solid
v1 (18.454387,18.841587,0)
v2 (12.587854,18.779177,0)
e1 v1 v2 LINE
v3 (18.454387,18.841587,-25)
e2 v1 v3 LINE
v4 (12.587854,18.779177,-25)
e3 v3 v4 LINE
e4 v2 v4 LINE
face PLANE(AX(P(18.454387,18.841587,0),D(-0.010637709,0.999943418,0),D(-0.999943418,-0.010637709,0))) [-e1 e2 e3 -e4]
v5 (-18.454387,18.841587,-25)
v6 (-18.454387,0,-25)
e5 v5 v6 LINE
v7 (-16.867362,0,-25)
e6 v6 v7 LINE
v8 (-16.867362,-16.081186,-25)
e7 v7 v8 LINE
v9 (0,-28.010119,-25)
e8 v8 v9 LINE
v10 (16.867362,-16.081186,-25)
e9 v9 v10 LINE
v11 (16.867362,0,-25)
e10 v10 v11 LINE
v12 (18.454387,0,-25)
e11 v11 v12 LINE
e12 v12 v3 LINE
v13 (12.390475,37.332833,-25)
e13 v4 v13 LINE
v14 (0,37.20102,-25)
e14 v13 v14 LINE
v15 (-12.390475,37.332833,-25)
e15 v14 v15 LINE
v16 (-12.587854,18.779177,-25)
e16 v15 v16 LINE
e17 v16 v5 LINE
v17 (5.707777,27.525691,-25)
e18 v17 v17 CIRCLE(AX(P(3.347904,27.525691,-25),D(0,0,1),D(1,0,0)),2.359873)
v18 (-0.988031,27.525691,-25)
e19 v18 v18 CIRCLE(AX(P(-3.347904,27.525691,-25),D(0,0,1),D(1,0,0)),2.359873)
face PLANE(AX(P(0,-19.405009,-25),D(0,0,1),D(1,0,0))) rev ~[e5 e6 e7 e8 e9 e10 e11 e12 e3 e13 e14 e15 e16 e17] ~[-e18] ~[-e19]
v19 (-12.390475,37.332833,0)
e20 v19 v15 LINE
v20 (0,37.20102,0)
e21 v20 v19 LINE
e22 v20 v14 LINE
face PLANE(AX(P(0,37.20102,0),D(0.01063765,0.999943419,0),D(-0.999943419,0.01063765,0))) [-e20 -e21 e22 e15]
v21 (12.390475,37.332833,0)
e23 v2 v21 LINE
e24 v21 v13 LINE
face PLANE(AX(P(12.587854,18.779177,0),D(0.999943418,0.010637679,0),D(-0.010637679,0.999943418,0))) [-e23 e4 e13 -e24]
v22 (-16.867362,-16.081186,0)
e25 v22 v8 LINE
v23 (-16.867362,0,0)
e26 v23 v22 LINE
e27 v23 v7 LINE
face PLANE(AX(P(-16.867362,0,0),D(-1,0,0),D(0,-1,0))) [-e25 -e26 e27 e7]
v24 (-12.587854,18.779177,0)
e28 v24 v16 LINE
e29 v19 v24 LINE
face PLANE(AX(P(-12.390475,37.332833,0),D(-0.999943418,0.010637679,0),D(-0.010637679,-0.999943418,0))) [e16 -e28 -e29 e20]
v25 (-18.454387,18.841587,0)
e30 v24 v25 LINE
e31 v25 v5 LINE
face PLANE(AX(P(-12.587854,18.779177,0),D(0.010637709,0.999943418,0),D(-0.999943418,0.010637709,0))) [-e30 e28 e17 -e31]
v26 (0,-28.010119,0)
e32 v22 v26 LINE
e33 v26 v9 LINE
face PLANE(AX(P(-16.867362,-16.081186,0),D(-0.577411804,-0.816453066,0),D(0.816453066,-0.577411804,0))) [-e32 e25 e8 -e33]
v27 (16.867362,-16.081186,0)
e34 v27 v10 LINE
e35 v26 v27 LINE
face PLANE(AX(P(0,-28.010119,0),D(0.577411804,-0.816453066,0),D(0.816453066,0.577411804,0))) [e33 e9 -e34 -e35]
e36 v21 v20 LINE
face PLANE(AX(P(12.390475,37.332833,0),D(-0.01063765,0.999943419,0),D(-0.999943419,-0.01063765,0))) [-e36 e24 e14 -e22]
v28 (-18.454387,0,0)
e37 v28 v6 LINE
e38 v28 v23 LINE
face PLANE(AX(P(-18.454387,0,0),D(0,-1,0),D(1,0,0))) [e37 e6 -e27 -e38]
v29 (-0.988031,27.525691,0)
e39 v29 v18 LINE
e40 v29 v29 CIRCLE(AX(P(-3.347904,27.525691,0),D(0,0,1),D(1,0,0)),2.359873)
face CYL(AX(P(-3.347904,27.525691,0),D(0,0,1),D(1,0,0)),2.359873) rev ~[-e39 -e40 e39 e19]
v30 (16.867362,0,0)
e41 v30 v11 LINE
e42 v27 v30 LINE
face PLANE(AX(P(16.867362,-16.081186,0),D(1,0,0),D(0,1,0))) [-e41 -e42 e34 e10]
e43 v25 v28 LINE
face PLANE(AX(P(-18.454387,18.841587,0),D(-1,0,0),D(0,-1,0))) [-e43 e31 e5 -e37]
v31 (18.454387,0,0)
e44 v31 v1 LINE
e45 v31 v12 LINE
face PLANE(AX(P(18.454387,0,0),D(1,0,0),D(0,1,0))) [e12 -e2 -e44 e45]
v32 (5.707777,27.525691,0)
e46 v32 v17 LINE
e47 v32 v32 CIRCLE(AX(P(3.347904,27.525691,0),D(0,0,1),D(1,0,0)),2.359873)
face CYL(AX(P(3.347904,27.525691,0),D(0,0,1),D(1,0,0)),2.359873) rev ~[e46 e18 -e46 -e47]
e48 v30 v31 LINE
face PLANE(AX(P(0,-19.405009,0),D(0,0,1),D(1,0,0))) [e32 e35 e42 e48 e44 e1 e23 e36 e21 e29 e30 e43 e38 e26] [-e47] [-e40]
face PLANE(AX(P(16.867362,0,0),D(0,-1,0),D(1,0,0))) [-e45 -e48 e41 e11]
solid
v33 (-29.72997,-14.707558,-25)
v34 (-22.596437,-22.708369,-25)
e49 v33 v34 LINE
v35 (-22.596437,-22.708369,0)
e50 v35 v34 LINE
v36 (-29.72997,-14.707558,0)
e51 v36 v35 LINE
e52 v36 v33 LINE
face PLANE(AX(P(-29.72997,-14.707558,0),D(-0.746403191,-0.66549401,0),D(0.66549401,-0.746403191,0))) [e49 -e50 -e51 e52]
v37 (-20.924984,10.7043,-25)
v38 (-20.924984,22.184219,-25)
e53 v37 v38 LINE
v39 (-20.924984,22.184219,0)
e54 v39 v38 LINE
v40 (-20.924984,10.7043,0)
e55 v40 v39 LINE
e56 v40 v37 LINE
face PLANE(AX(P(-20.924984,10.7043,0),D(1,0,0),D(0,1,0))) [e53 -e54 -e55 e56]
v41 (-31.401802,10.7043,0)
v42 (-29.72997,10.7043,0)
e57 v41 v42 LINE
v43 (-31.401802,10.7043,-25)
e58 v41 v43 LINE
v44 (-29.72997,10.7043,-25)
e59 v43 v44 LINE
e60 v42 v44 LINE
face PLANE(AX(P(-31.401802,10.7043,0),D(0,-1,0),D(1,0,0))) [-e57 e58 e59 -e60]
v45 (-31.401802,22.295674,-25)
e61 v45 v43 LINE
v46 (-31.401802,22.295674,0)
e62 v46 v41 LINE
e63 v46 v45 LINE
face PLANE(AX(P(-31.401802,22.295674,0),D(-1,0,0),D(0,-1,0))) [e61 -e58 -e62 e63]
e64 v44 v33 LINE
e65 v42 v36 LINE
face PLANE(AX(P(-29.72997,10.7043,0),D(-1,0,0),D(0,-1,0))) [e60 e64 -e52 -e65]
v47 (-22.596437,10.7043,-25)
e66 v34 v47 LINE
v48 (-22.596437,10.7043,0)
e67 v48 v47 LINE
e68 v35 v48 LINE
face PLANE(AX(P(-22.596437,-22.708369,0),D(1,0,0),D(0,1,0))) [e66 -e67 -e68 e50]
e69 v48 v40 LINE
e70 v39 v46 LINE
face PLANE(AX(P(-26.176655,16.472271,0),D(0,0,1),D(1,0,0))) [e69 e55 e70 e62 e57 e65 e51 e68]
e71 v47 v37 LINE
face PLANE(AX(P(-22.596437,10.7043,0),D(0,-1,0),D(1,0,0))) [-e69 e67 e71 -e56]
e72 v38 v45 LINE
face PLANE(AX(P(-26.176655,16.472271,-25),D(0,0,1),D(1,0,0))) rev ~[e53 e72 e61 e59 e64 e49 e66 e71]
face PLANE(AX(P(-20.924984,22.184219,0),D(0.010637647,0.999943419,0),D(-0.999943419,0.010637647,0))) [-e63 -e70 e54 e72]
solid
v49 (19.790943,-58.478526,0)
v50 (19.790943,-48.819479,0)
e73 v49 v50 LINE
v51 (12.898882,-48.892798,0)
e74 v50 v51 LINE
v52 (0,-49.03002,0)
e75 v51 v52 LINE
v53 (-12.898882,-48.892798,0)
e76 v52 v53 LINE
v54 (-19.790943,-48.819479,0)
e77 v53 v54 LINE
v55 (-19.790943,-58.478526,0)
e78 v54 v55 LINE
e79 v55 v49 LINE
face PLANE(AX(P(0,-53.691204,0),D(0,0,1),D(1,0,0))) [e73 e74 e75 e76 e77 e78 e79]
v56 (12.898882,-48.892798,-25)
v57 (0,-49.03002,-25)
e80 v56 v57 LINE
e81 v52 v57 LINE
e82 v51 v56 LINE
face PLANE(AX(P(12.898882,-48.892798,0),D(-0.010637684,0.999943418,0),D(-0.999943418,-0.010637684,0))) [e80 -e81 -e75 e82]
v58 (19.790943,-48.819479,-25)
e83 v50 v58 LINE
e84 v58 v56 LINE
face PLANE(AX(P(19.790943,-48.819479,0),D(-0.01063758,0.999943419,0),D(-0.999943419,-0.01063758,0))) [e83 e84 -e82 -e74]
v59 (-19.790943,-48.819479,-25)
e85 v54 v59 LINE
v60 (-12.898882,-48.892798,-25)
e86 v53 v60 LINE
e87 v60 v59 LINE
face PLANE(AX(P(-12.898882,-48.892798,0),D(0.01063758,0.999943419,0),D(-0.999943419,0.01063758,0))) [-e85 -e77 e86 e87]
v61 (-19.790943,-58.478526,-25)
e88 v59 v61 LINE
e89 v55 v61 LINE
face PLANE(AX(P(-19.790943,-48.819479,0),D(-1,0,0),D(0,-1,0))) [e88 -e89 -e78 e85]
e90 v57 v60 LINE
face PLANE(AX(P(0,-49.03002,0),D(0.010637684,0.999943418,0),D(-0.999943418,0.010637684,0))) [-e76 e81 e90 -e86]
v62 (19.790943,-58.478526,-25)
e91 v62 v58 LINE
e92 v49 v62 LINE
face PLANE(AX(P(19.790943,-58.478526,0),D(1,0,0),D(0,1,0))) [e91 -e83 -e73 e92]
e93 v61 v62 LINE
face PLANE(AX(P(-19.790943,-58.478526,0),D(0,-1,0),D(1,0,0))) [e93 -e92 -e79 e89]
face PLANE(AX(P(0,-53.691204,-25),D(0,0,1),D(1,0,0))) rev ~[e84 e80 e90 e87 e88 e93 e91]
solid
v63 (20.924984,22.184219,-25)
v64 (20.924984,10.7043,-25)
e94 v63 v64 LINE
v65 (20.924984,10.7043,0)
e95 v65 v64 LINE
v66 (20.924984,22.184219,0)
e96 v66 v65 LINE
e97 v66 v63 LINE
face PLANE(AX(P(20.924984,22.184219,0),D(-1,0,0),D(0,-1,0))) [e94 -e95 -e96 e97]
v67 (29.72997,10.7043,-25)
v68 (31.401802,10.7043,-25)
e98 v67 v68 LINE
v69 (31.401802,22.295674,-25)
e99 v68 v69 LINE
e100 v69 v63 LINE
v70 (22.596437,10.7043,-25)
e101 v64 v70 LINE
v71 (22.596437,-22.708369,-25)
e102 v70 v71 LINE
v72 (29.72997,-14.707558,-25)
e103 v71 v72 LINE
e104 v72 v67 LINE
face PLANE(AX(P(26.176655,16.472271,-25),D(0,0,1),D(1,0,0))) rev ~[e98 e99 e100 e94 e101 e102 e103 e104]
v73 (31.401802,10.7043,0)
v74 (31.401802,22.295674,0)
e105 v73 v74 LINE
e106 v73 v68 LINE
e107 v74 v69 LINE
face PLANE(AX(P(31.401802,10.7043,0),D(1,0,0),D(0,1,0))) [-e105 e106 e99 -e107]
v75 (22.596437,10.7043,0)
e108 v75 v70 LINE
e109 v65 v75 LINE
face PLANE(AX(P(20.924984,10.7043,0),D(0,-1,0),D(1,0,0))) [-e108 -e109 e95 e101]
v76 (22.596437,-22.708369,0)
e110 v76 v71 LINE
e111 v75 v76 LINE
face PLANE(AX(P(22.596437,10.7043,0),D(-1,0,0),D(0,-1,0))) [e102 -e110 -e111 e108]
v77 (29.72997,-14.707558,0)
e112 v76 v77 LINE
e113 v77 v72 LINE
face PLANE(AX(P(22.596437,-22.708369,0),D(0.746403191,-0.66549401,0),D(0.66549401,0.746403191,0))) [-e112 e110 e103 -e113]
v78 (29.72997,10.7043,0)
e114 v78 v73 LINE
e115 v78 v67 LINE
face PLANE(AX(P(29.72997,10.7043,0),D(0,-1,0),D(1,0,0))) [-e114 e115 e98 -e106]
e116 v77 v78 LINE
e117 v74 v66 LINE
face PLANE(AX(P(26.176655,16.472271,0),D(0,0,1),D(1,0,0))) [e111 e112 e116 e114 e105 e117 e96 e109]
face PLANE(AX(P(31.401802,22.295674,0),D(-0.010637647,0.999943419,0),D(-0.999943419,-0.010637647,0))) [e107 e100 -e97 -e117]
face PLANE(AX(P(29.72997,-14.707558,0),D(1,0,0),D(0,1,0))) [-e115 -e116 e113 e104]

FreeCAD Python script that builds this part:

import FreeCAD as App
import Part
import Sketcher
from FreeCAD import Vector


def add_polygon(sketch, points):
    """Adds a closed chain of lines whose ends are joined by coincident constraints."""
    first, n = sketch.GeometryCount, len(points)
    for a, b in zip(points, points[1:] + points[:1]):
        sketch.addGeometry(Part.LineSegment(App.Vector(*a, 0), App.Vector(*b, 0)), False)
    for i in range(n):
        sketch.addConstraint(Sketcher.Constraint("Coincident", first + i, 2, first + (i + 1) % n, 1))

doc = App.newDocument("Part")
body = doc.addObject("PartDesign::Body", "Body")
body.AllowCompound = True

# Sketch on XY plane
sketch1 = body.newObject("Sketcher::SketchObject", "Sketch")
sketch1.AttachmentSupport = (doc.getObject("XY_Plane"), [""])
sketch1.MapMode = "FlatFace"
add_polygon(sketch1, [(-20.924984, 22.184219), (-31.401802, 22.295674), (-31.401802, 10.7043), (-29.72997, 10.7043), (-29.72997, -14.707558), (-22.596437, -22.708369), (-22.596437, 10.7043), (-20.924984, 10.7043)])  # lines 0-7
add_polygon(sketch1, [(-16.867362, -16.081186), (0, -28.010119), (16.867362, -16.081186), (16.867362, 0), (18.454387, 0), (18.454387, 18.841587), (12.587854, 18.779177), (12.390475, 37.332833), (0, 37.20102), (-12.390475, 37.332833), (-12.587854, 18.779177), (-18.454387, 18.841587), (-18.454387, 0), (-16.867362, 0)])  # lines 8-21
sketch1.addGeometry(Part.Circle(Vector(-3.347904, 27.525691, 0), Vector(0, 0, 1), 2.359873), False)  # 22
sketch1.addGeometry(Part.Circle(Vector(3.347904, 27.525691, 0), Vector(0, 0, 1), 2.359873), False)  # 23
add_polygon(sketch1, [(-19.790943, -48.819479), (-19.790943, -58.478526), (19.790943, -58.478526), (19.790943, -48.819479), (12.898882, -48.892798), (0, -49.03002), (-12.898882, -48.892798)])  # lines 24-30
add_polygon(sketch1, [(31.401802, 22.295674), (20.924984, 22.184219), (20.924984, 10.7043), (22.596437, 10.7043), (22.596437, -22.708369), (29.72997, -14.707558), (29.72997, 10.7043), (31.401802, 10.7043)])  # lines 31-38
sketch1.addConstraint([
    Sketcher.Constraint("Vertical", 1),
    Sketcher.Constraint("Horizontal", 2),
    Sketcher.Constraint("Vertical", 3),
    Sketcher.Constraint("Vertical", 5),
    Sketcher.Constraint("Horizontal", 6),
    Sketcher.Constraint("Vertical", 7),
    Sketcher.Constraint("Vertical", 10),
    Sketcher.Constraint("Horizontal", 11),
    Sketcher.Constraint("Vertical", 12),
    Sketcher.Constraint("Vertical", 19),
    Sketcher.Constraint("Horizontal", 20),
    Sketcher.Constraint("Vertical", 21),
    Sketcher.Constraint("Vertical", 24),
    Sketcher.Constraint("Horizontal", 25),
    Sketcher.Constraint("Vertical", 26),
    Sketcher.Constraint("Vertical", 32),
    Sketcher.Constraint("Horizontal", 33),
    Sketcher.Constraint("Vertical", 34),
    Sketcher.Constraint("Vertical", 36),
    Sketcher.Constraint("Horizontal", 37),
    Sketcher.Constraint("Vertical", 38),
    Sketcher.Constraint("PointOnObject", 8, 2, -2),
    Sketcher.Constraint("PointOnObject", 10, 2, -1),
    Sketcher.Constraint("PointOnObject", 15, 2, -2),
    Sketcher.Constraint("PointOnObject", 19, 2, -1),
    Sketcher.Constraint("PointOnObject", 28, 2, -2),
    Sketcher.Constraint("Diameter", 22, 4.719746),
    Sketcher.Constraint("Diameter", 23, 4.719746),
    Sketcher.Constraint("DistanceX", 2, 1, 2, 2, 1.671832),
    Sketcher.Constraint("DistanceX", 37, 1, 37, 2, 1.671832),
    Sketcher.Constraint("DistanceY", 3, 2, 3, 1, 25.411858),
    Sketcher.Constraint("DistanceY", 5, 1, 5, 2, 33.412669),
    Sketcher.Constraint("DistanceY", 7, 1, 7, 2, 11.479919),
    Sketcher.Constraint("DistanceY", 32, 2, 32, 1, 11.479919),
    Sketcher.Constraint("DistanceY", 34, 2, 34, 1, 33.412669),
    Sketcher.Constraint("DistanceY", 36, 1, 36, 2, 25.411858),
    Sketcher.Constraint("DistanceX", 0, 2, -1, 1, 31.401802),
    Sketcher.Constraint("DistanceY", -1, 1, 1, 2, 10.7043),
    Sketcher.Constraint("DistanceY", -1, 1, 5, 2, 10.7043),
    Sketcher.Constraint("DistanceY", -1, 1, 32, 2, 10.7043),
    Sketcher.Constraint("DistanceY", -1, 1, 36, 2, 10.7043),
    Sketcher.Constraint("DistanceX", -1, 1, 37, 2, 31.401802),
    Sketcher.Constraint("DistanceX", 0, 2, 22, 3, 28.053898),
    Sketcher.Constraint("DistanceX", 4, 2, 9, 2, 39.463799),
    Sketcher.Constraint("DistanceY", 7, 2, 15, 2, 15.016801),
    Sketcher.Constraint("DistanceY", 28, 2, 8, 2, 21.019901),
    Sketcher.Constraint("Distance", 0, 10.477411),
    Sketcher.Constraint("Distance", 27, 6.892451),
    Sketcher.Constraint("Distance", 28, 12.899612),
    Sketcher.Constraint("Distance", 29, 12.899612),
    Sketcher.Constraint("Distance", 30, 6.892451),
    Sketcher.Constraint("Distance", 31, 10.477411),
    Sketcher.Constraint("DistanceX", 6, 1, 6, 2, 1.671453),
    Sketcher.Constraint("DistanceX", 11, 1, 11, 2, 1.587025),
    Sketcher.Constraint("DistanceX", 20, 1, 20, 2, 1.587025),
    Sketcher.Constraint("DistanceX", 25, 1, 25, 2, 39.581886),
    Sketcher.Constraint("DistanceX", 33, 1, 33, 2, 1.671453),
    Sketcher.Constraint("DistanceY", 1, 2, 1, 1, 11.591374),
    Sketcher.Constraint("DistanceY", 10, 1, 10, 2, 16.081186),
    Sketcher.Constraint("DistanceY", 12, 1, 12, 2, 18.841587),
    Sketcher.Constraint("DistanceY", 19, 2, 19, 1, 18.841587),
    Sketcher.Constraint("DistanceY", 21, 2, 21, 1, 16.081186),
    Sketcher.Constraint("DistanceY", 24, 2, 24, 1, 9.659047),
    Sketcher.Constraint("DistanceY", 26, 1, 26, 2, 9.659047),
    Sketcher.Constraint("DistanceY", 38, 1, 38, 2, 11.591374),
    Sketcher.Constraint("DistanceY", -1, 1, 22, 3, 27.525691),
    Sketcher.Constraint("DistanceY", -1, 1, 23, 3, 27.525691),
    Sketcher.Constraint("DistanceY", 8, 2, -1, 1, 28.010119),
    Sketcher.Constraint("DistanceX", 20, 2, -1, 1, 16.867362),
    Sketcher.Constraint("DistanceX", 22, 3, 23, 3, 6.695808),
    Sketcher.Constraint("DistanceY", 13, 2, 12, 2, 0.06241),
    Sketcher.Constraint("DistanceX", 23, 3, 13, 2, 9.23995),
    Sketcher.Constraint("DistanceX", 23, 3, 14, 2, 9.042571),
    Sketcher.Constraint("DistanceX", 16, 2, 22, 3, 9.042571),
    Sketcher.Constraint("DistanceY", 0, 2, 16, 2, 15.037159),
    Sketcher.Constraint("DistanceX", 7, 2, 17, 2, 8.33713),
    Sketcher.Constraint("DistanceY", 17, 2, 7, 2, 3.405042),
    Sketcher.Constraint("DistanceX", 27, 2, 26, 2, 6.892061),
    Sketcher.Constraint("DistanceX", 24, 2, 29, 2, 6.892061),
    Sketcher.Constraint("Distance", 14, 18.554706),
])
pad1 = body.newObject("PartDesign::Pad", "Pad")
pad1.Profile = sketch1
pad1.Length = 25
pad1.Reversed = True

doc.recompute()
